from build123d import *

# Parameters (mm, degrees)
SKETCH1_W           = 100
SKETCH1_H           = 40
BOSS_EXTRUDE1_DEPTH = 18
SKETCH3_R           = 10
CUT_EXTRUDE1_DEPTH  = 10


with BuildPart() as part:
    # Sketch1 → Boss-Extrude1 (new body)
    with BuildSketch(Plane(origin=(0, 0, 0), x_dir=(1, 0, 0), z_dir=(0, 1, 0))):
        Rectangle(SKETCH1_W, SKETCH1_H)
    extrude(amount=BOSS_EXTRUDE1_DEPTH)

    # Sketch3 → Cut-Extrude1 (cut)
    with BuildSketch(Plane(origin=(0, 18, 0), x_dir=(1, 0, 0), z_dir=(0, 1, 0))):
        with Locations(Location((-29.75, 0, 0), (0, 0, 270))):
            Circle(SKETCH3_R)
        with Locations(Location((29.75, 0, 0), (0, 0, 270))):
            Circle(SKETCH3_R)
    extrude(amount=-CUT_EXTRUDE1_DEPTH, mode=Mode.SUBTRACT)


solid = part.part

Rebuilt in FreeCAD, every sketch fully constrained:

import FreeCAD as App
import Part
import Sketcher

V = App.Vector

doc = App.newDocument("Part")
params = doc.addObject("Spreadsheet::Sheet", "Params")
for row, (alias, value) in enumerate([
    ("sketch1_width", "100 mm"),
    ("sketch1_height", "40 mm"),
    ("pad1_length", "18 mm"),
    ("sketch2_diameter", "20 mm"),
    ("pocket1_length", "10 mm"),
], start=1):
    params.set(f"A{row}", alias)
    params.set(f"B{row}", "=" + value)
    params.setAlias(f"B{row}", alias)

body = doc.addObject("PartDesign::Body", "Body")

# Sketch on XZ plane
sketch1 = doc.addObject("Sketcher::SketchObject", "Sketch")
body.addObject(sketch1)
sketch1.AttachmentSupport = (doc.XZ_Plane, [""])
sketch1.MapMode = "FlatFace"
sketch1.addGeometry(Part.LineSegment(V(-50, -20, 0), V(-50, 20, 0)), False)
sketch1.addGeometry(Part.LineSegment(V(-50, 20, 0), V(50, 20, 0)), False)
sketch1.addGeometry(Part.LineSegment(V(50, 20, 0), V(50, -20, 0)), False)
sketch1.addGeometry(Part.LineSegment(V(50, -20, 0), V(-50, -20, 0)), False)
sketch1.addConstraint(Sketcher.Constraint("Coincident", 0, 2, 1, 1))
sketch1.addConstraint(Sketcher.Constraint("Coincident", 1, 2, 2, 1))
sketch1.addConstraint(Sketcher.Constraint("Coincident", 2, 2, 3, 1))
sketch1.addConstraint(Sketcher.Constraint("Coincident", 3, 2, 0, 1))
sketch1.addConstraint(Sketcher.Constraint("Vertical", 0))
sketch1.addConstraint(Sketcher.Constraint("Horizontal", 1))
sketch1.addConstraint(Sketcher.Constraint("Vertical", 2))
sketch1.addConstraint(Sketcher.Constraint("Horizontal", 3))
sketch1.addConstraint(Sketcher.Constraint("Symmetric", 0, 2, 2, 2, -1, 1))
sketch1.addConstraint(Sketcher.Constraint("DistanceX", 1, 1, 1, 2, 100.0))
sketch1.addConstraint(Sketcher.Constraint("DistanceY", 0, 1, 0, 2, 40.0))
sketch1.setExpression("Constraints[9]", "Params.sketch1_width")
sketch1.setExpression("Constraints[10]", "Params.sketch1_height")
pad1 = doc.addObject("PartDesign::Pad", "Pad")
body.addObject(pad1)
pad1.Profile = sketch1
pad1.setExpression("Length", "Params.pad1_length")
pad1.Reversed = True

# Sketch on XZ plane
sketch2 = doc.addObject("Sketcher::SketchObject", "Sketch001")
body.addObject(sketch2)
sketch2.AttachmentSupport = (doc.XZ_Plane, [""])
sketch2.MapMode = "FlatFace"
sketch2.AttachmentOffset = App.Placement(V(0, 0, -18), App.Rotation())
sketch2.addGeometry(Part.Circle(V(-30, 0, 0), V(0, 0, 1), 10), False)
sketch2.addGeometry(Part.Circle(V(30, 0, 0), V(0, 0, 1), 10), False)
sketch2.addConstraint(Sketcher.Constraint("Equal", 0, 1))
sketch2.addConstraint(Sketcher.Constraint("Symmetric", 0, 3, 1, 3, -1, 1))
sketch2.addConstraint(Sketcher.Constraint("PointOnObject", 0, 3, -1))
sketch2.addConstraint(Sketcher.Constraint("Diameter", 0, 20.0))
sketch2.addConstraint(Sketcher.Constraint("DistanceX", 0, 3, 1, 3, 59.5))
sketch2.setExpression("Constraints[3]", "Params.sketch2_diameter")
pocket1 = doc.addObject("PartDesign::Pocket", "Pocket")
body.addObject(pocket1)
pocket1.Profile = sketch2
pocket1.setExpression("Length", "Params.pocket1_length")
pocket1.Reversed = True

doc.recompute()
